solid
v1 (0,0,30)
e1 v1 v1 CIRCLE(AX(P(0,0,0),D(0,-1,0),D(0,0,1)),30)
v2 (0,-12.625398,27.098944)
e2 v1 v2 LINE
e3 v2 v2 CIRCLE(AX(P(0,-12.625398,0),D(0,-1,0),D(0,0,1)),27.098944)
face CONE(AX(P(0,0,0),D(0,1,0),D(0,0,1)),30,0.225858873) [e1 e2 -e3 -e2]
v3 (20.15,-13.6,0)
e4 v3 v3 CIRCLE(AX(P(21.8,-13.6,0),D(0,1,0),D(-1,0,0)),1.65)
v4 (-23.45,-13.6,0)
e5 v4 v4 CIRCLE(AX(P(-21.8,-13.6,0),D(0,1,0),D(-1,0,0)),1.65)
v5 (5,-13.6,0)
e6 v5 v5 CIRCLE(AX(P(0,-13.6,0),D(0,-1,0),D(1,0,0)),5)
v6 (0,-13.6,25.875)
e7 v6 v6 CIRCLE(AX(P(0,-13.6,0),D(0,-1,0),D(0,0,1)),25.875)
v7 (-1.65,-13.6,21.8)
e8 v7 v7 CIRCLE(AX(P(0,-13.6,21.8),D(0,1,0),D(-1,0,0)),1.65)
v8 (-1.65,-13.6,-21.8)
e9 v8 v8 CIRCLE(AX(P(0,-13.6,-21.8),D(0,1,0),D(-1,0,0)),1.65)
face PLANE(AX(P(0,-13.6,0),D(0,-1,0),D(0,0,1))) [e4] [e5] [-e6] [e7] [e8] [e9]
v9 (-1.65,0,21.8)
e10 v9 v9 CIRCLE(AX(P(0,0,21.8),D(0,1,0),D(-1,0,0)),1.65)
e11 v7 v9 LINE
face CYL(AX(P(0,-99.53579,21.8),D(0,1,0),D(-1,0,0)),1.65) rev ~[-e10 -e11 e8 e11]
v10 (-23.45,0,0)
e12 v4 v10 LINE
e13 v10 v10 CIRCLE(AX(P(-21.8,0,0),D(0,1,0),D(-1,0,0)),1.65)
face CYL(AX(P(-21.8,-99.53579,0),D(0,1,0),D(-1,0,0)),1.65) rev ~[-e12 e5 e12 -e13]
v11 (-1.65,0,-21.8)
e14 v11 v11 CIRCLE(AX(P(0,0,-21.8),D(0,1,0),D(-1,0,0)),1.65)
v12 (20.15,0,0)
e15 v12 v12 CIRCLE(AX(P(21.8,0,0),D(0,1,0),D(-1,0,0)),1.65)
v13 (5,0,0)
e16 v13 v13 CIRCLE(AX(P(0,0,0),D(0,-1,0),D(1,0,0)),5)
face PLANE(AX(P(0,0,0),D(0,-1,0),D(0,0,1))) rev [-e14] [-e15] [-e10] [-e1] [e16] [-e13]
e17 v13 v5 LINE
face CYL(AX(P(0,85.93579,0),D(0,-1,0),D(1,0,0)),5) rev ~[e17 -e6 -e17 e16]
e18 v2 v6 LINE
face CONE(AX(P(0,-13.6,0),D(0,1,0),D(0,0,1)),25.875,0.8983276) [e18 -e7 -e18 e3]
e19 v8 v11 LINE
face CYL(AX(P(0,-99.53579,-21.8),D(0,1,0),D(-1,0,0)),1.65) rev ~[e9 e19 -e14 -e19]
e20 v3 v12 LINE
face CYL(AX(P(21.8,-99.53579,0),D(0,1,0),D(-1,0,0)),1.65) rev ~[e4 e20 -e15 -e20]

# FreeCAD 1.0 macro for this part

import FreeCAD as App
import Part
import Sketcher


def edges_at(feature, points):
    """Names of the edges that pass closest to the given points."""
    edges = feature.Shape.Edges
    near = lambda p: min(range(len(edges)), key=lambda i: edges[i].distToShape(Part.Vertex(*p))[0])
    return sorted({f"Edge{near(p) + 1}" for p in points})


def add_polygon(sketch, points):
    """Adds a closed chain of lines whose ends are joined by coincident constraints."""
    first, n = sketch.GeometryCount, len(points)
    for a, b in zip(points, points[1:] + points[:1]):
        sketch.addGeometry(Part.LineSegment(App.Vector(*a, 0), App.Vector(*b, 0)), False)
    for i in range(n):
        sketch.addConstraint(Sketcher.Constraint("Coincident", first + i, 2, first + (i + 1) % n, 1))

doc = App.newDocument("Part")
body = doc.addObject("PartDesign::Body", "Body")

# Sketch on YZ plane
sketch1 = body.newObject("Sketcher::SketchObject", "Sketch")
sketch1.AttachmentSupport = (doc.getObject("YZ_Plane"), [""])
sketch1.MapMode = "FlatFace"
add_polygon(sketch1, [(-14, 0), (0, 0), (0, 30), (-14, 27)])  # lines 0-3
sketch1.addConstraint(Sketcher.Constraint("Horizontal", 0))
sketch1.addConstraint(Sketcher.Constraint("Vertical", 1))
sketch1.addConstraint(Sketcher.Constraint("Vertical", 3))
sketch1.addConstraint(Sketcher.Constraint("Coincident", 0, 2, -1, 1))
sketch1.addConstraint(Sketcher.Constraint("DistanceY", 1, 1, 1, 2, 30.0))
sketch1.addConstraint(Sketcher.Constraint("DistanceX", 0, 1, 0, 2, 13.6))
sketch1.addConstraint(Sketcher.Constraint("DistanceY", 3, 2, 3, 1, 26.875))
revolution = body.newObject("PartDesign::Revolution", "Revolution")
revolution.Profile = sketch1
revolution.ReferenceAxis = (sketch1, ["H_Axis"])
revolution.Angle = 360

# Sketch on XZ plane
sketch2 = body.newObject("Sketcher::SketchObject", "Sketch001")
sketch2.AttachmentSupport = (doc.getObject("XZ_Plane"), [""])
sketch2.MapMode = "FlatFace"
sketch2.addGeometry(Part.Circle(App.Vector(0, 0, 0), App.Vector(0, 0, 1), 5), False)
sketch2.addConstraint(Sketcher.Constraint("Coincident", 0, 3, -1, 1))
sketch2.addConstraint(Sketcher.Constraint("Diameter", 0, 10.0))
doc.recompute()
hole = body.newObject("PartDesign::Hole", "Hole")
hole.Profile = sketch2
hole.ThreadType = "None"
hole.Diameter = 10
hole.DepthType = "ThroughAll"
hole.Reversed = True
doc.recompute()

chamfer = body.newObject("PartDesign::Chamfer", "Chamfer")
chamfer.Base = (hole, edges_at(hole, [(0, -13.6, -26.875)]))
chamfer.Size = 1

# Sketch on XZ plane
sketch3 = body.newObject("Sketcher::SketchObject", "Sketch002")
sketch3.AttachmentSupport = (doc.getObject("XZ_Plane"), [""])
sketch3.MapMode = "FlatFace"
sketch3.AttachmentOffset = App.Placement(App.Vector(0, 0, 13.6), App.Rotation())
sketch3.addGeometry(Part.Circle(App.Vector(0, 21.8, 0), App.Vector(0, 0, 1), 1.6), False)
sketch3.addGeometry(Part.Circle(App.Vector(21.8, 0, 0), App.Vector(0, 0, 1), 1.6), False)
sketch3.addGeometry(Part.Circle(App.Vector(0, -21.8, 0), App.Vector(0, 0, 1), 1.6), False)
sketch3.addGeometry(Part.Circle(App.Vector(-21.8, 0, 0), App.Vector(0, 0, 1), 1.6), False)
sketch3.addConstraint(Sketcher.Constraint("Equal", 0, 1))
sketch3.addConstraint(Sketcher.Constraint("Equal", 1, 2))
sketch3.addConstraint(Sketcher.Constraint("Equal", 2, 3))
sketch3.addConstraint(Sketcher.Constraint("Symmetric", 0, 3, 2, 3, -1, 1))
sketch3.addConstraint(Sketcher.Constraint("Symmetric", 1, 3, 3, 3, -1, 1))
sketch3.addConstraint(Sketcher.Constraint("PointOnObject", 0, 3, -2))
sketch3.addConstraint(Sketcher.Constraint("PointOnObject", 1, 3, -1))
sketch3.addConstraint(Sketcher.Constraint("Diameter", 0, 3.3))
sketch3.addConstraint(Sketcher.Constraint("DistanceY", -1, 1, 0, 3, 21.8))
sketch3.addConstraint(Sketcher.Constraint("DistanceX", -1, 1, 1, 3, 21.8))
doc.recompute()
hole2 = body.newObject("PartDesign::Hole", "Hole001")
hole2.Profile = sketch3
hole2.ThreadType = "None"
hole2.Diameter = 3.3
hole2.DepthType = "ThroughAll"

doc.recompute()
